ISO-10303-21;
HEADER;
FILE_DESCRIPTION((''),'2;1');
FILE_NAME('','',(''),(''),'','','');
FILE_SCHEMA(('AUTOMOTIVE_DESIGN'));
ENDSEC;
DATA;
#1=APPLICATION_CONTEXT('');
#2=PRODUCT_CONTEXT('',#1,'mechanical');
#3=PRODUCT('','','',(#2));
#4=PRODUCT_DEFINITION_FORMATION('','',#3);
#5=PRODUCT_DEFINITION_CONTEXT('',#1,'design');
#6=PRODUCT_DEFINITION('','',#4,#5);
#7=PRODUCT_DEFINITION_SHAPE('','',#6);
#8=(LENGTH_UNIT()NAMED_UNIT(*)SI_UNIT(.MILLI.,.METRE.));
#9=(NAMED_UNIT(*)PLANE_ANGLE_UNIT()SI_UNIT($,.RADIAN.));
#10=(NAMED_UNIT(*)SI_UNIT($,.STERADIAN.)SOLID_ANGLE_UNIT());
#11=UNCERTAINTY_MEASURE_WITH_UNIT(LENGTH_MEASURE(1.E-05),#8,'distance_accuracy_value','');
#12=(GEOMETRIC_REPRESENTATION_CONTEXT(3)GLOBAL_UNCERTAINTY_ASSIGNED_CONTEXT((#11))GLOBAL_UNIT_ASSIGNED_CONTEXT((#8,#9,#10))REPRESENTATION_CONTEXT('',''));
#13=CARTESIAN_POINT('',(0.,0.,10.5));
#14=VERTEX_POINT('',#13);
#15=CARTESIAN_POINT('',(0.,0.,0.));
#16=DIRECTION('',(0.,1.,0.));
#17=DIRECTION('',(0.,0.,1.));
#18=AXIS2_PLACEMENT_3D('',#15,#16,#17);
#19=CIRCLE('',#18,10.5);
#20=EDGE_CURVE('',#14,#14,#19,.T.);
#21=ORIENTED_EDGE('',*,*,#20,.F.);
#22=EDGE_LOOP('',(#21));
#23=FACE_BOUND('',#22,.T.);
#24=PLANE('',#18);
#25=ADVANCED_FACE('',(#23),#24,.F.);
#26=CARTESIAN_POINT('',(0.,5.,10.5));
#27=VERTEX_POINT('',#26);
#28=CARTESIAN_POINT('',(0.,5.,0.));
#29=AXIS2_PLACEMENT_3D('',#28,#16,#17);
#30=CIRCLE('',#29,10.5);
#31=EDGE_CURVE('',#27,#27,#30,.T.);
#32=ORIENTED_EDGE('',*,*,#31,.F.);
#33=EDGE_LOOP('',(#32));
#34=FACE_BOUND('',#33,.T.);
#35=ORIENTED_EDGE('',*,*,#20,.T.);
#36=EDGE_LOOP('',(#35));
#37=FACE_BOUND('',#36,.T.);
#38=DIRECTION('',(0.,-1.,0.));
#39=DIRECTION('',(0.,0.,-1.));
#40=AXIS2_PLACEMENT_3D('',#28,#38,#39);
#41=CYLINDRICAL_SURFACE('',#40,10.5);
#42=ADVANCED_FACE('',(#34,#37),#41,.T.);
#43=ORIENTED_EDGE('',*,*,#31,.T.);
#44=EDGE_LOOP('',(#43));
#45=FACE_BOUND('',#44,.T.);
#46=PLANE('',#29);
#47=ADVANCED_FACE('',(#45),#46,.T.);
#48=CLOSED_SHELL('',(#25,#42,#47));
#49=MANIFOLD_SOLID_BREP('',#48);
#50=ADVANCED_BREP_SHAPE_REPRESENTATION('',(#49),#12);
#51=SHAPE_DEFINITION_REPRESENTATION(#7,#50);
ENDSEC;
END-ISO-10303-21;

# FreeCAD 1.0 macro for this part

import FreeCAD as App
import Part
import Sketcher
from FreeCAD import Vector
Q = App.Units.Quantity

doc = App.newDocument("Part")
body = doc.addObject("PartDesign::Body", "Body")

# Sketch on XZ plane
sketch1 = body.newObject("Sketcher::SketchObject", "Sketch")
sketch1.AttachmentSupport = (doc.getObject("XZ_Plane"), [""])
sketch1.MapMode = "FlatFace"
sketch1.addGeometry(Part.Circle(Vector(0, 0, 0), Vector(0, 0, 1), 10), False)
sketch1.addConstraint([
    Sketcher.Constraint("Coincident", 0, 3, -1, 1),
    Sketcher.Constraint("Diameter", 0, Q("21 mm")),
])
pad1 = body.newObject("PartDesign::Pad", "Pad")
pad1.Profile = sketch1
pad1.Length = 5
pad1.Reversed = True

doc.recompute()
